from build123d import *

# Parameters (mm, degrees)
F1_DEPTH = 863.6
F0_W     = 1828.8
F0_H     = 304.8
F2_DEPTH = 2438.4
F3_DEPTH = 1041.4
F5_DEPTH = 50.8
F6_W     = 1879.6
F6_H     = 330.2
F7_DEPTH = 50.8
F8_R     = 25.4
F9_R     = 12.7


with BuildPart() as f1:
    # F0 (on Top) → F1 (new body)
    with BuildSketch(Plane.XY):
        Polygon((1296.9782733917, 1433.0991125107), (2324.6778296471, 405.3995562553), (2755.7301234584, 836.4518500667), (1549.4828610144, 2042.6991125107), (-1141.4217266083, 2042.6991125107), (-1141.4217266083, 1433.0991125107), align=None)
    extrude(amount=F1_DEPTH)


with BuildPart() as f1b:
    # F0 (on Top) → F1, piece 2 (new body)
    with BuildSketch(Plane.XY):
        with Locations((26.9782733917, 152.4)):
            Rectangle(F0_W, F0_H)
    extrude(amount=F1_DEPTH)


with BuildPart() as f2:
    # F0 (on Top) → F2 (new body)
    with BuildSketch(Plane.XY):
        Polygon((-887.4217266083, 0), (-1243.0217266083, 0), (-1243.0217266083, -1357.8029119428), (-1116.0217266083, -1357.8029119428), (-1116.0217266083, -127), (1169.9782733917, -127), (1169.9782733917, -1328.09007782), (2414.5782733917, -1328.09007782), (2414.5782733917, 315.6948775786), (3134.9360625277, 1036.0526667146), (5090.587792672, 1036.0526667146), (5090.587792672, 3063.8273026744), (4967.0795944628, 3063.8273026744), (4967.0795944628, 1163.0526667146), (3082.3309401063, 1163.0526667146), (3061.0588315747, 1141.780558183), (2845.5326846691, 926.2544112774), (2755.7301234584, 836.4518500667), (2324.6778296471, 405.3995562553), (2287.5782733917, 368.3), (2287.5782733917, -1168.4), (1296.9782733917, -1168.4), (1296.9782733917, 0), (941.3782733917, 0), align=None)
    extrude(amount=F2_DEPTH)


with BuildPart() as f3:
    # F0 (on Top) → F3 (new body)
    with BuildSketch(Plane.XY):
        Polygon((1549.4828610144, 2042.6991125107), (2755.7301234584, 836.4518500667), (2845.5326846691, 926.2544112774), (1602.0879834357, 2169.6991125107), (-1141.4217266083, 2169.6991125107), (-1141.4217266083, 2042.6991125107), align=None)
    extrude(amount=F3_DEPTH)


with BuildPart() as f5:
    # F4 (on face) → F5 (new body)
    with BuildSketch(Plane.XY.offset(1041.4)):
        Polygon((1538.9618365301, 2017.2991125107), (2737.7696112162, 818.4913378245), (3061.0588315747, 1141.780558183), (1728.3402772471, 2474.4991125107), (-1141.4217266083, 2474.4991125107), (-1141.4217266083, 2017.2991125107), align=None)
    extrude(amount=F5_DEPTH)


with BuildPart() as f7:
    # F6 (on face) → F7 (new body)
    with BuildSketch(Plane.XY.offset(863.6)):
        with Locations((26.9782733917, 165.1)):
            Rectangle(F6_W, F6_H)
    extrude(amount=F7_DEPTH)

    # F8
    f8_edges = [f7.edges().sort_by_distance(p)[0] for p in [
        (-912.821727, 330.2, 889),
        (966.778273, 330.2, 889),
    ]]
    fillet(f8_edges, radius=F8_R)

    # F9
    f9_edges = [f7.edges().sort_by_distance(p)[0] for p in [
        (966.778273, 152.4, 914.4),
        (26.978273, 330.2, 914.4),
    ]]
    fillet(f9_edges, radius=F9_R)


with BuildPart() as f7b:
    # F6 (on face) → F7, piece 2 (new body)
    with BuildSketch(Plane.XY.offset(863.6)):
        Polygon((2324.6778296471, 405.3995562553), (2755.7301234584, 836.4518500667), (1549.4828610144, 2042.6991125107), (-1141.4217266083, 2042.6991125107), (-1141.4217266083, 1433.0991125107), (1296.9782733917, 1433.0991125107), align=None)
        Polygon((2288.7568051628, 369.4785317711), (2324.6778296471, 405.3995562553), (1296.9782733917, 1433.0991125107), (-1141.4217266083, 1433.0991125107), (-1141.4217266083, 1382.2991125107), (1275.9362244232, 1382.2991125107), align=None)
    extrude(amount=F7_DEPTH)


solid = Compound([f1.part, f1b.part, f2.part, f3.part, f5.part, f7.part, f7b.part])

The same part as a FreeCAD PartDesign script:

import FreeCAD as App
import Part
import Sketcher
Q = App.Units.Quantity


def edges_at(feature, points):
    """Names of the edges that pass closest to the given points."""
    edges = feature.Shape.Edges
    near = lambda p: min(range(len(edges)), key=lambda i: edges[i].distToShape(Part.Vertex(*p))[0])
    return sorted({f"Edge{near(p) + 1}" for p in points})


def add_polygon(sketch, points):
    """Adds a closed chain of lines whose ends are joined by coincident constraints."""
    first, n = sketch.GeometryCount, len(points)
    for a, b in zip(points, points[1:] + points[:1]):
        sketch.addGeometry(Part.LineSegment(App.Vector(*a, 0), App.Vector(*b, 0)), False)
    for i in range(n):
        sketch.addConstraint(Sketcher.Constraint("Coincident", first + i, 2, first + (i + 1) % n, 1))

doc = App.newDocument("Part")
body = doc.addObject("PartDesign::Body", "Body")

sketch1 = body.newObject("Sketcher::SketchObject", "Sketch")
sketch1.AttachmentSupport = (doc.getObject("XY_Plane"), [""])
sketch1.MapMode = "FlatFace"
add_polygon(sketch1, [(1297, 1433), (2325, 405), (2756, 836), (1549, 2043), (-1141, 2043), (-1141, 1433)])
sketch1.addConstraint(Sketcher.Constraint("Horizontal", 3))
sketch1.addConstraint(Sketcher.Constraint("Vertical", 4))
sketch1.addConstraint(Sketcher.Constraint("Horizontal", 5))
sketch1.addConstraint(Sketcher.Constraint("Perpendicular", 0, 1))
sketch1.addConstraint(Sketcher.Constraint("Perpendicular", 1, 2))
sketch1.addConstraint(Sketcher.Constraint("DistanceX", 5, 1, 5, 2, Q("96 in")))
sketch1.addConstraint(Sketcher.Constraint("DistanceY", 4, 2, 4, 1, Q("24 in")))
sketch1.addConstraint(Sketcher.Constraint("Distance", 1, Q("24 in")))
sketch1.addConstraint(Sketcher.Constraint("Angle", 0, Q("-45 deg")))
sketch1.addConstraint(Sketcher.Constraint("Distance", 0, Q("1453.386651 mm")))
sketch1.addConstraint(Sketcher.Constraint("DistanceX", -1, 1, 0, 2, Q("2324.67783 mm")))
sketch1.addConstraint(Sketcher.Constraint("DistanceY", -1, 1, 1, 2, Q("836.45185 mm")))
pad1 = body.newObject("PartDesign::Pad", "Pad")
pad1.Profile = sketch1
pad1.Length = Q("34 in")
body2 = doc.addObject("PartDesign::Body", "Body001")

sketch2 = body2.newObject("Sketcher::SketchObject", "Sketch001")
sketch2.AttachmentSupport = (doc.getObject("XY_Plane001"), [""])
sketch2.MapMode = "FlatFace"
add_polygon(sketch2, [(-887, 305), (-887, 0), (941, 0), (941, 305)])
sketch2.addConstraint(Sketcher.Constraint("Vertical", 0))
sketch2.addConstraint(Sketcher.Constraint("Horizontal", 1))
sketch2.addConstraint(Sketcher.Constraint("Vertical", 2))
sketch2.addConstraint(Sketcher.Constraint("Horizontal", 3))
sketch2.addConstraint(Sketcher.Constraint("PointOnObject", 0, 2, -1))
sketch2.addConstraint(Sketcher.Constraint("DistanceX", 1, 1, 1, 2, Q("72 in")))
sketch2.addConstraint(Sketcher.Constraint("DistanceY", 0, 2, 0, 1, Q("12 in")))
sketch2.addConstraint(Sketcher.Constraint("DistanceX", 0, 2, -1, 1, Q("887.421727 mm")))
pad2 = body2.newObject("PartDesign::Pad", "Pad001")
pad2.Profile = sketch2
pad2.Length = Q("34 in")
body3 = doc.addObject("PartDesign::Body", "Body002")

sketch3 = body3.newObject("Sketcher::SketchObject", "Sketch002")
sketch3.AttachmentSupport = (doc.getObject("XY_Plane002"), [""])
sketch3.MapMode = "FlatFace"
add_polygon(sketch3, [(-1243, 0), (-1243, -1358), (-1116, -1358), (-1116, -127), (1170, -127), (1170, -1328), (2415, -1328), (2415, 316), (3135, 1036), (5091, 1036), (5091, 3064), (4967, 3064), (4967, 1163), (3082, 1163), (2325, 405), (2288, 368), (2288, -1168), (1297, -1168), (1297, 0)])
sketch3.addConstraint(Sketcher.Constraint("Vertical", 0))
sketch3.addConstraint(Sketcher.Constraint("Horizontal", 1))
sketch3.addConstraint(Sketcher.Constraint("Vertical", 2))
sketch3.addConstraint(Sketcher.Constraint("Horizontal", 3))
sketch3.addConstraint(Sketcher.Constraint("Vertical", 4))
sketch3.addConstraint(Sketcher.Constraint("Horizontal", 5))
sketch3.addConstraint(Sketcher.Constraint("Vertical", 6))
sketch3.addConstraint(Sketcher.Constraint("Horizontal", 8))
sketch3.addConstraint(Sketcher.Constraint("Vertical", 9))
sketch3.addConstraint(Sketcher.Constraint("Horizontal", 10))
sketch3.addConstraint(Sketcher.Constraint("Vertical", 11))
sketch3.addConstraint(Sketcher.Constraint("Horizontal", 12))
sketch3.addConstraint(Sketcher.Constraint("Vertical", 15))
sketch3.addConstraint(Sketcher.Constraint("Horizontal", 16))
sketch3.addConstraint(Sketcher.Constraint("Vertical", 17))
sketch3.addConstraint(Sketcher.Constraint("Horizontal", 18))
sketch3.addConstraint(Sketcher.Constraint("PointOnObject", 17, 2, -1))
sketch3.addConstraint(Sketcher.Constraint("Parallel", 7, 13))
sketch3.addConstraint(Sketcher.Constraint("Parallel", 13, 14))
sketch3.addConstraint(Sketcher.Constraint("DistanceX", 1, 1, 1, 2, Q("5 in")))
sketch3.addConstraint(Sketcher.Constraint("DistanceX", 3, 1, 3, 2, Q("90 in")))
sketch3.addConstraint(Sketcher.Constraint("DistanceX", 5, 1, 5, 2, Q("49 in")))
sketch3.addConstraint(Sketcher.Constraint("DistanceX", 16, 2, 16, 1, Q("39 in")))
sketch3.addConstraint(Sketcher.Constraint("DistanceX", 18, 2, 18, 1, Q("100 in")))
sketch3.addConstraint(Sketcher.Constraint("DistanceY", 17, 1, 17, 2, Q("46 in")))
sketch3.addConstraint(Sketcher.Constraint("DistanceY", 15, 2, 15, 1, Q("60.5 in")))
sketch3.addConstraint(Sketcher.Constraint("DistanceY", 2, 2, -1, 1, Q("5 in")))
sketch3.addConstraint(Sketcher.Constraint("Angle", 7, Q("45 deg")))
sketch3.addConstraint(Sketcher.Constraint("DistanceY", 8, 2, 11, 2, Q("5 in")))
sketch3.addConstraint(Sketcher.Constraint("DistanceX", 10, 2, 10, 1, Q("123.508198 mm")))
sketch3.addConstraint(Sketcher.Constraint("DistanceX", 8, 1, 8, 2, Q("1955.65173 mm")))
sketch3.addConstraint(Sketcher.Constraint("DistanceY", 0, 2, 0, 1, Q("1357.802912 mm")))
sketch3.addConstraint(Sketcher.Constraint("DistanceX", 12, 2, 12, 1, Q("1884.748654 mm")))
sketch3.addConstraint(Sketcher.Constraint("DistanceY", 4, 2, 4, 1, Q("1201.090078 mm")))
sketch3.addConstraint(Sketcher.Constraint("DistanceY", 9, 1, 9, 2, Q("2027.774636 mm")))
sketch3.addConstraint(Sketcher.Constraint("DistanceX", -1, 1, 12, 2, Q("3082.33094 mm")))
sketch3.addConstraint(Sketcher.Constraint("DistanceX", -1, 1, 13, 2, Q("2324.67783 mm")))
sketch3.addConstraint(Sketcher.Constraint("DistanceX", 6, 2, 7, 2, Q("720.357789 mm")))
pad3 = body3.newObject("PartDesign::Pad", "Pad002")
pad3.Profile = sketch3
pad3.Length = Q("96 in")
body4 = doc.addObject("PartDesign::Body", "Body003")

sketch4 = body4.newObject("Sketcher::SketchObject", "Sketch003")
sketch4.AttachmentSupport = (doc.getObject("XY_Plane003"), [""])
sketch4.MapMode = "FlatFace"
add_polygon(sketch4, [(1549, 2043), (2756, 836), (2846, 926), (1602, 2170), (-1141, 2170), (-1141, 2043)])
sketch4.addConstraint(Sketcher.Constraint("Horizontal", 3))
sketch4.addConstraint(Sketcher.Constraint("Vertical", 4))
sketch4.addConstraint(Sketcher.Constraint("Horizontal", 5))
sketch4.addConstraint(Sketcher.Constraint("Perpendicular", 0, 1))
sketch4.addConstraint(Sketcher.Constraint("Perpendicular", 1, 2))
sketch4.addConstraint(Sketcher.Constraint("DistanceY", 4, 2, 4, 1, Q("5 in")))
sketch4.addConstraint(Sketcher.Constraint("Distance", 1, Q("5 in")))
sketch4.addConstraint(Sketcher.Constraint("Angle", 0, Q("-45 deg")))
sketch4.addConstraint(Sketcher.Constraint("DistanceX", 3, 2, 3, 1, Q("2743.50971 mm")))
sketch4.addConstraint(Sketcher.Constraint("DistanceX", 2, 2, 1, 2, Q("1243.444701 mm")))
sketch4.addConstraint(Sketcher.Constraint("DistanceY", -1, 1, 0, 2, Q("836.45185 mm")))
sketch4.addConstraint(Sketcher.Constraint("DistanceX", -1, 1, 5, 2, Q("1549.482861 mm")))
pad4 = body4.newObject("PartDesign::Pad", "Pad003")
pad4.Profile = sketch4
pad4.Length = Q("41 in")
body5 = doc.addObject("PartDesign::Body", "Body004")

sketch5 = body5.newObject("Sketcher::SketchObject", "Sketch004")
sketch5.AttachmentSupport = (doc.getObject("XY_Plane004"), [""])
sketch5.MapMode = "FlatFace"
sketch5.AttachmentOffset = App.Placement(App.Vector(0, 0, 41 * 25.4), App.Rotation())
add_polygon(sketch5, [(1539, 2017), (2738, 818), (3061, 1142), (1728, 2474), (-1141, 2474), (-1141, 2017)])
sketch5.addConstraint(Sketcher.Constraint("Horizontal", 3))
sketch5.addConstraint(Sketcher.Constraint("Vertical", 4))
sketch5.addConstraint(Sketcher.Constraint("Horizontal", 5))
sketch5.addConstraint(Sketcher.Constraint("Perpendicular", 0, 1))
sketch5.addConstraint(Sketcher.Constraint("Perpendicular", 1, 2))
sketch5.addConstraint(Sketcher.Constraint("DistanceY", 4, 2, 4, 1, Q("18 in")))
sketch5.addConstraint(Sketcher.Constraint("Distance", 1, Q("18 in")))
sketch5.addConstraint(Sketcher.Constraint("Angle", 0, Q("-45 deg")))
sketch5.addConstraint(Sketcher.Constraint("DistanceX", 3, 2, 3, 1, Q("2869.762004 mm")))
sketch5.addConstraint(Sketcher.Constraint("DistanceX", -1, 1, 0, 2, Q("2737.769611 mm")))
sketch5.addConstraint(Sketcher.Constraint("DistanceY", -1, 1, 1, 2, Q("1141.780558 mm")))
sketch5.addConstraint(Sketcher.Constraint("DistanceX", 3, 2, 1, 2, Q("4202.480558 mm")))
pad5 = body5.newObject("PartDesign::Pad", "Pad004")
pad5.Profile = sketch5
pad5.Length = Q("2 in")
body6 = doc.addObject("PartDesign::Body", "Body005")

sketch6 = body6.newObject("Sketcher::SketchObject", "Sketch005")
sketch6.AttachmentSupport = (doc.getObject("XY_Plane005"), [""])
sketch6.MapMode = "FlatFace"
sketch6.AttachmentOffset = App.Placement(App.Vector(0, 0, 34 * 25.4), App.Rotation())
add_polygon(sketch6, [(-913, 330), (-913, 0), (967, 0), (967, 330)])
sketch6.addConstraint(Sketcher.Constraint("Vertical", 0))
sketch6.addConstraint(Sketcher.Constraint("Horizontal", 1))
sketch6.addConstraint(Sketcher.Constraint("Vertical", 2))
sketch6.addConstraint(Sketcher.Constraint("Horizontal", 3))
sketch6.addConstraint(Sketcher.Constraint("PointOnObject", 0, 2, -1))
sketch6.addConstraint(Sketcher.Constraint("DistanceX", 1, 1, 1, 2, Q("74 in")))
sketch6.addConstraint(Sketcher.Constraint("DistanceY", 0, 2, 0, 1, Q("13 in")))
sketch6.addConstraint(Sketcher.Constraint("DistanceX", 0, 2, -1, 1, Q("912.821727 mm")))
pad6 = body6.newObject("PartDesign::Pad", "Pad005")
pad6.Profile = sketch6
pad6.Length = Q("2 in")
doc.recompute()

fillet = body6.newObject("PartDesign::Fillet", "Fillet")
fillet.Base = (pad6, edges_at(pad6, [(-912.822, 330.2, 889), (966.778, 330.2, 889)]))
fillet.Radius = Q("1 in")
doc.recompute()

fillet2 = body6.newObject("PartDesign::Fillet", "Fillet001")
fillet2.Base = (fillet, edges_at(fillet, [(966.778, 152.4, 914.4), (26.978, 330.2, 914.4)]))
fillet2.Radius = Q("0.5 in")
body7 = doc.addObject("PartDesign::Body", "Body006")

sketch7 = body7.newObject("Sketcher::SketchObject", "Sketch006")
sketch7.AttachmentSupport = (doc.getObject("XY_Plane006"), [""])
sketch7.MapMode = "FlatFace"
sketch7.AttachmentOffset = App.Placement(App.Vector(0, 0, 34 * 25.4), App.Rotation())
add_polygon(sketch7, [(2325, 405), (2756, 836), (1549, 2043), (-1141, 2043), (-1141, 1382), (1276, 1382), (2289, 369)])
sketch7.addConstraint(Sketcher.Constraint("Horizontal", 2))
sketch7.addConstraint(Sketcher.Constraint("Vertical", 3))
sketch7.addConstraint(Sketcher.Constraint("Horizontal", 4))
sketch7.addConstraint(Sketcher.Constraint("Perpendicular", 0, 1))
sketch7.addConstraint(Sketcher.Constraint("Parallel", 1, 5))
sketch7.addConstraint(Sketcher.Constraint("Perpendicular", 5, 6))
sketch7.addConstraint(Sketcher.Constraint("DistanceY", 3, 2, 3, 1, Q("26 in")))
sketch7.addConstraint(Sketcher.Constraint("Distance", 0, Q("24 in")))
sketch7.addConstraint(Sketcher.Constraint("Distance", 6, Q("2 in")))
sketch7.addConstraint(Sketcher.Constraint("Angle", 0, Q("45 deg")))
sketch7.addConstraint(Sketcher.Constraint("Distance", 5, Q("1432.344602 mm")))
sketch7.addConstraint(Sketcher.Constraint("DistanceX", 4, 1, 4, 2, Q("2417.357951 mm")))
sketch7.addConstraint(Sketcher.Constraint("DistanceY", -1, 1, 0, 2, Q("836.45185 mm")))
sketch7.addConstraint(Sketcher.Constraint("DistanceX", -1, 1, 1, 2, Q("1549.482861 mm")))
pad7 = body7.newObject("PartDesign::Pad", "Pad006")
pad7.Profile = sketch7
pad7.Length = Q("2 in")

doc.recompute()
